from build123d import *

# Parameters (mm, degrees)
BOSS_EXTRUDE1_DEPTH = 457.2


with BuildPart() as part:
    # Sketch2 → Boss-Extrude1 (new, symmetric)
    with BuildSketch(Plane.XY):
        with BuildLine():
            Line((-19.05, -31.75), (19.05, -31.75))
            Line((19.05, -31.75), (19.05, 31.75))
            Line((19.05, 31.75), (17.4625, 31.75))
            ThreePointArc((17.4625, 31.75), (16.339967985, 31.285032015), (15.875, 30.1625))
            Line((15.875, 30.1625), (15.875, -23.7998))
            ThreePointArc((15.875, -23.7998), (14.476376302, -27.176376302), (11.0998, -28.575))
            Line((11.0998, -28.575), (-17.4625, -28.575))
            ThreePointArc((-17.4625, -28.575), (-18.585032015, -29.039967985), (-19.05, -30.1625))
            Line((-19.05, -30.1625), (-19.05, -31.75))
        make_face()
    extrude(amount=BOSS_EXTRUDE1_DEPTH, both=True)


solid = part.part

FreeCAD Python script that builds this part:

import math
import FreeCAD as App
import Part
import Sketcher
Q = App.Units.Quantity

doc = App.newDocument("Part")
body = doc.addObject("PartDesign::Body", "Body")

sketch1 = body.newObject("Sketcher::SketchObject", "Sketch")
sketch1.AttachmentSupport = (doc.getObject("XY_Plane"), [""])
sketch1.MapMode = "FlatFace"
sketch1.addGeometry(Part.LineSegment(App.Vector(-19.1, -31.8, 0), App.Vector(19.1, -31.8, 0)), False)
sketch1.addGeometry(Part.LineSegment(App.Vector(19.1, -31.8, 0), App.Vector(19.1, 31.8, 0)), False)
sketch1.addGeometry(Part.LineSegment(App.Vector(19.1, 31.8, 0), App.Vector(17.5, 31.8, 0)), False)
sketch1.addGeometry(Part.ArcOfCircle(Part.Circle(App.Vector(17.5, 30.2, 0), App.Vector(0, 0, 1), 1.6), math.radians(90), math.radians(180)), False)
sketch1.addGeometry(Part.LineSegment(App.Vector(15.9, 30.2, 0), App.Vector(15.9, -23.8, 0)), False)
sketch1.addGeometry(Part.ArcOfCircle(Part.Circle(App.Vector(11.1, -23.8, 0), App.Vector(0, 0, 1), 4.8), math.radians(-90), math.radians(0)), False)
sketch1.addGeometry(Part.LineSegment(App.Vector(11.1, -28.6, 0), App.Vector(-17.5, -28.6, 0)), False)
sketch1.addGeometry(Part.ArcOfCircle(Part.Circle(App.Vector(-17.5, -30.2, 0), App.Vector(0, 0, 1), 1.6), math.radians(90), math.radians(180)), False)
sketch1.addGeometry(Part.LineSegment(App.Vector(-19.1, -30.2, 0), App.Vector(-19.1, -31.8, 0)), False)
sketch1.addConstraint(Sketcher.Constraint("Coincident", 0, 2, 1, 1))
sketch1.addConstraint(Sketcher.Constraint("Coincident", 1, 2, 2, 1))
sketch1.addConstraint(Sketcher.Constraint("Tangent", 2, 2, 3, 1))
sketch1.addConstraint(Sketcher.Constraint("Tangent", 3, 2, 4, 1))
sketch1.addConstraint(Sketcher.Constraint("Tangent", 4, 2, 5, 2))
sketch1.addConstraint(Sketcher.Constraint("Tangent", 5, 1, 6, 1))
sketch1.addConstraint(Sketcher.Constraint("Tangent", 6, 2, 7, 1))
sketch1.addConstraint(Sketcher.Constraint("Tangent", 7, 2, 8, 1))
sketch1.addConstraint(Sketcher.Constraint("Coincident", 8, 2, 0, 1))
sketch1.addConstraint(Sketcher.Constraint("Horizontal", 0))
sketch1.addConstraint(Sketcher.Constraint("Vertical", 1))
sketch1.addConstraint(Sketcher.Constraint("Horizontal", 2))
sketch1.addConstraint(Sketcher.Constraint("Vertical", 4))
sketch1.addConstraint(Sketcher.Constraint("Horizontal", 6))
sketch1.addConstraint(Sketcher.Constraint("Vertical", 8))
sketch1.addConstraint(Sketcher.Constraint("Equal", 3, 7))
sketch1.addConstraint(Sketcher.Constraint("Symmetric", 3, 3, 7, 3, -1, 1))
sketch1.addConstraint(Sketcher.Constraint("Symmetric", 1, 2, 8, 2, -1, 1))
sketch1.addConstraint(Sketcher.Constraint("DistanceX", 0, 1, 0, 2, Q("1.5 in")))
sketch1.addConstraint(Sketcher.Constraint("DistanceY", 1, 1, 1, 2, Q("2.5 in")))
sketch1.addConstraint(Sketcher.Constraint("Radius", 3, Q("0.0625 in")))
sketch1.addConstraint(Sketcher.Constraint("Radius", 5, Q("0.188 in")))
pad1 = body.newObject("PartDesign::Pad", "Pad")
pad1.Profile = sketch1
pad1.Length = Q("36 in")
pad1.Midplane = True

doc.recompute()
